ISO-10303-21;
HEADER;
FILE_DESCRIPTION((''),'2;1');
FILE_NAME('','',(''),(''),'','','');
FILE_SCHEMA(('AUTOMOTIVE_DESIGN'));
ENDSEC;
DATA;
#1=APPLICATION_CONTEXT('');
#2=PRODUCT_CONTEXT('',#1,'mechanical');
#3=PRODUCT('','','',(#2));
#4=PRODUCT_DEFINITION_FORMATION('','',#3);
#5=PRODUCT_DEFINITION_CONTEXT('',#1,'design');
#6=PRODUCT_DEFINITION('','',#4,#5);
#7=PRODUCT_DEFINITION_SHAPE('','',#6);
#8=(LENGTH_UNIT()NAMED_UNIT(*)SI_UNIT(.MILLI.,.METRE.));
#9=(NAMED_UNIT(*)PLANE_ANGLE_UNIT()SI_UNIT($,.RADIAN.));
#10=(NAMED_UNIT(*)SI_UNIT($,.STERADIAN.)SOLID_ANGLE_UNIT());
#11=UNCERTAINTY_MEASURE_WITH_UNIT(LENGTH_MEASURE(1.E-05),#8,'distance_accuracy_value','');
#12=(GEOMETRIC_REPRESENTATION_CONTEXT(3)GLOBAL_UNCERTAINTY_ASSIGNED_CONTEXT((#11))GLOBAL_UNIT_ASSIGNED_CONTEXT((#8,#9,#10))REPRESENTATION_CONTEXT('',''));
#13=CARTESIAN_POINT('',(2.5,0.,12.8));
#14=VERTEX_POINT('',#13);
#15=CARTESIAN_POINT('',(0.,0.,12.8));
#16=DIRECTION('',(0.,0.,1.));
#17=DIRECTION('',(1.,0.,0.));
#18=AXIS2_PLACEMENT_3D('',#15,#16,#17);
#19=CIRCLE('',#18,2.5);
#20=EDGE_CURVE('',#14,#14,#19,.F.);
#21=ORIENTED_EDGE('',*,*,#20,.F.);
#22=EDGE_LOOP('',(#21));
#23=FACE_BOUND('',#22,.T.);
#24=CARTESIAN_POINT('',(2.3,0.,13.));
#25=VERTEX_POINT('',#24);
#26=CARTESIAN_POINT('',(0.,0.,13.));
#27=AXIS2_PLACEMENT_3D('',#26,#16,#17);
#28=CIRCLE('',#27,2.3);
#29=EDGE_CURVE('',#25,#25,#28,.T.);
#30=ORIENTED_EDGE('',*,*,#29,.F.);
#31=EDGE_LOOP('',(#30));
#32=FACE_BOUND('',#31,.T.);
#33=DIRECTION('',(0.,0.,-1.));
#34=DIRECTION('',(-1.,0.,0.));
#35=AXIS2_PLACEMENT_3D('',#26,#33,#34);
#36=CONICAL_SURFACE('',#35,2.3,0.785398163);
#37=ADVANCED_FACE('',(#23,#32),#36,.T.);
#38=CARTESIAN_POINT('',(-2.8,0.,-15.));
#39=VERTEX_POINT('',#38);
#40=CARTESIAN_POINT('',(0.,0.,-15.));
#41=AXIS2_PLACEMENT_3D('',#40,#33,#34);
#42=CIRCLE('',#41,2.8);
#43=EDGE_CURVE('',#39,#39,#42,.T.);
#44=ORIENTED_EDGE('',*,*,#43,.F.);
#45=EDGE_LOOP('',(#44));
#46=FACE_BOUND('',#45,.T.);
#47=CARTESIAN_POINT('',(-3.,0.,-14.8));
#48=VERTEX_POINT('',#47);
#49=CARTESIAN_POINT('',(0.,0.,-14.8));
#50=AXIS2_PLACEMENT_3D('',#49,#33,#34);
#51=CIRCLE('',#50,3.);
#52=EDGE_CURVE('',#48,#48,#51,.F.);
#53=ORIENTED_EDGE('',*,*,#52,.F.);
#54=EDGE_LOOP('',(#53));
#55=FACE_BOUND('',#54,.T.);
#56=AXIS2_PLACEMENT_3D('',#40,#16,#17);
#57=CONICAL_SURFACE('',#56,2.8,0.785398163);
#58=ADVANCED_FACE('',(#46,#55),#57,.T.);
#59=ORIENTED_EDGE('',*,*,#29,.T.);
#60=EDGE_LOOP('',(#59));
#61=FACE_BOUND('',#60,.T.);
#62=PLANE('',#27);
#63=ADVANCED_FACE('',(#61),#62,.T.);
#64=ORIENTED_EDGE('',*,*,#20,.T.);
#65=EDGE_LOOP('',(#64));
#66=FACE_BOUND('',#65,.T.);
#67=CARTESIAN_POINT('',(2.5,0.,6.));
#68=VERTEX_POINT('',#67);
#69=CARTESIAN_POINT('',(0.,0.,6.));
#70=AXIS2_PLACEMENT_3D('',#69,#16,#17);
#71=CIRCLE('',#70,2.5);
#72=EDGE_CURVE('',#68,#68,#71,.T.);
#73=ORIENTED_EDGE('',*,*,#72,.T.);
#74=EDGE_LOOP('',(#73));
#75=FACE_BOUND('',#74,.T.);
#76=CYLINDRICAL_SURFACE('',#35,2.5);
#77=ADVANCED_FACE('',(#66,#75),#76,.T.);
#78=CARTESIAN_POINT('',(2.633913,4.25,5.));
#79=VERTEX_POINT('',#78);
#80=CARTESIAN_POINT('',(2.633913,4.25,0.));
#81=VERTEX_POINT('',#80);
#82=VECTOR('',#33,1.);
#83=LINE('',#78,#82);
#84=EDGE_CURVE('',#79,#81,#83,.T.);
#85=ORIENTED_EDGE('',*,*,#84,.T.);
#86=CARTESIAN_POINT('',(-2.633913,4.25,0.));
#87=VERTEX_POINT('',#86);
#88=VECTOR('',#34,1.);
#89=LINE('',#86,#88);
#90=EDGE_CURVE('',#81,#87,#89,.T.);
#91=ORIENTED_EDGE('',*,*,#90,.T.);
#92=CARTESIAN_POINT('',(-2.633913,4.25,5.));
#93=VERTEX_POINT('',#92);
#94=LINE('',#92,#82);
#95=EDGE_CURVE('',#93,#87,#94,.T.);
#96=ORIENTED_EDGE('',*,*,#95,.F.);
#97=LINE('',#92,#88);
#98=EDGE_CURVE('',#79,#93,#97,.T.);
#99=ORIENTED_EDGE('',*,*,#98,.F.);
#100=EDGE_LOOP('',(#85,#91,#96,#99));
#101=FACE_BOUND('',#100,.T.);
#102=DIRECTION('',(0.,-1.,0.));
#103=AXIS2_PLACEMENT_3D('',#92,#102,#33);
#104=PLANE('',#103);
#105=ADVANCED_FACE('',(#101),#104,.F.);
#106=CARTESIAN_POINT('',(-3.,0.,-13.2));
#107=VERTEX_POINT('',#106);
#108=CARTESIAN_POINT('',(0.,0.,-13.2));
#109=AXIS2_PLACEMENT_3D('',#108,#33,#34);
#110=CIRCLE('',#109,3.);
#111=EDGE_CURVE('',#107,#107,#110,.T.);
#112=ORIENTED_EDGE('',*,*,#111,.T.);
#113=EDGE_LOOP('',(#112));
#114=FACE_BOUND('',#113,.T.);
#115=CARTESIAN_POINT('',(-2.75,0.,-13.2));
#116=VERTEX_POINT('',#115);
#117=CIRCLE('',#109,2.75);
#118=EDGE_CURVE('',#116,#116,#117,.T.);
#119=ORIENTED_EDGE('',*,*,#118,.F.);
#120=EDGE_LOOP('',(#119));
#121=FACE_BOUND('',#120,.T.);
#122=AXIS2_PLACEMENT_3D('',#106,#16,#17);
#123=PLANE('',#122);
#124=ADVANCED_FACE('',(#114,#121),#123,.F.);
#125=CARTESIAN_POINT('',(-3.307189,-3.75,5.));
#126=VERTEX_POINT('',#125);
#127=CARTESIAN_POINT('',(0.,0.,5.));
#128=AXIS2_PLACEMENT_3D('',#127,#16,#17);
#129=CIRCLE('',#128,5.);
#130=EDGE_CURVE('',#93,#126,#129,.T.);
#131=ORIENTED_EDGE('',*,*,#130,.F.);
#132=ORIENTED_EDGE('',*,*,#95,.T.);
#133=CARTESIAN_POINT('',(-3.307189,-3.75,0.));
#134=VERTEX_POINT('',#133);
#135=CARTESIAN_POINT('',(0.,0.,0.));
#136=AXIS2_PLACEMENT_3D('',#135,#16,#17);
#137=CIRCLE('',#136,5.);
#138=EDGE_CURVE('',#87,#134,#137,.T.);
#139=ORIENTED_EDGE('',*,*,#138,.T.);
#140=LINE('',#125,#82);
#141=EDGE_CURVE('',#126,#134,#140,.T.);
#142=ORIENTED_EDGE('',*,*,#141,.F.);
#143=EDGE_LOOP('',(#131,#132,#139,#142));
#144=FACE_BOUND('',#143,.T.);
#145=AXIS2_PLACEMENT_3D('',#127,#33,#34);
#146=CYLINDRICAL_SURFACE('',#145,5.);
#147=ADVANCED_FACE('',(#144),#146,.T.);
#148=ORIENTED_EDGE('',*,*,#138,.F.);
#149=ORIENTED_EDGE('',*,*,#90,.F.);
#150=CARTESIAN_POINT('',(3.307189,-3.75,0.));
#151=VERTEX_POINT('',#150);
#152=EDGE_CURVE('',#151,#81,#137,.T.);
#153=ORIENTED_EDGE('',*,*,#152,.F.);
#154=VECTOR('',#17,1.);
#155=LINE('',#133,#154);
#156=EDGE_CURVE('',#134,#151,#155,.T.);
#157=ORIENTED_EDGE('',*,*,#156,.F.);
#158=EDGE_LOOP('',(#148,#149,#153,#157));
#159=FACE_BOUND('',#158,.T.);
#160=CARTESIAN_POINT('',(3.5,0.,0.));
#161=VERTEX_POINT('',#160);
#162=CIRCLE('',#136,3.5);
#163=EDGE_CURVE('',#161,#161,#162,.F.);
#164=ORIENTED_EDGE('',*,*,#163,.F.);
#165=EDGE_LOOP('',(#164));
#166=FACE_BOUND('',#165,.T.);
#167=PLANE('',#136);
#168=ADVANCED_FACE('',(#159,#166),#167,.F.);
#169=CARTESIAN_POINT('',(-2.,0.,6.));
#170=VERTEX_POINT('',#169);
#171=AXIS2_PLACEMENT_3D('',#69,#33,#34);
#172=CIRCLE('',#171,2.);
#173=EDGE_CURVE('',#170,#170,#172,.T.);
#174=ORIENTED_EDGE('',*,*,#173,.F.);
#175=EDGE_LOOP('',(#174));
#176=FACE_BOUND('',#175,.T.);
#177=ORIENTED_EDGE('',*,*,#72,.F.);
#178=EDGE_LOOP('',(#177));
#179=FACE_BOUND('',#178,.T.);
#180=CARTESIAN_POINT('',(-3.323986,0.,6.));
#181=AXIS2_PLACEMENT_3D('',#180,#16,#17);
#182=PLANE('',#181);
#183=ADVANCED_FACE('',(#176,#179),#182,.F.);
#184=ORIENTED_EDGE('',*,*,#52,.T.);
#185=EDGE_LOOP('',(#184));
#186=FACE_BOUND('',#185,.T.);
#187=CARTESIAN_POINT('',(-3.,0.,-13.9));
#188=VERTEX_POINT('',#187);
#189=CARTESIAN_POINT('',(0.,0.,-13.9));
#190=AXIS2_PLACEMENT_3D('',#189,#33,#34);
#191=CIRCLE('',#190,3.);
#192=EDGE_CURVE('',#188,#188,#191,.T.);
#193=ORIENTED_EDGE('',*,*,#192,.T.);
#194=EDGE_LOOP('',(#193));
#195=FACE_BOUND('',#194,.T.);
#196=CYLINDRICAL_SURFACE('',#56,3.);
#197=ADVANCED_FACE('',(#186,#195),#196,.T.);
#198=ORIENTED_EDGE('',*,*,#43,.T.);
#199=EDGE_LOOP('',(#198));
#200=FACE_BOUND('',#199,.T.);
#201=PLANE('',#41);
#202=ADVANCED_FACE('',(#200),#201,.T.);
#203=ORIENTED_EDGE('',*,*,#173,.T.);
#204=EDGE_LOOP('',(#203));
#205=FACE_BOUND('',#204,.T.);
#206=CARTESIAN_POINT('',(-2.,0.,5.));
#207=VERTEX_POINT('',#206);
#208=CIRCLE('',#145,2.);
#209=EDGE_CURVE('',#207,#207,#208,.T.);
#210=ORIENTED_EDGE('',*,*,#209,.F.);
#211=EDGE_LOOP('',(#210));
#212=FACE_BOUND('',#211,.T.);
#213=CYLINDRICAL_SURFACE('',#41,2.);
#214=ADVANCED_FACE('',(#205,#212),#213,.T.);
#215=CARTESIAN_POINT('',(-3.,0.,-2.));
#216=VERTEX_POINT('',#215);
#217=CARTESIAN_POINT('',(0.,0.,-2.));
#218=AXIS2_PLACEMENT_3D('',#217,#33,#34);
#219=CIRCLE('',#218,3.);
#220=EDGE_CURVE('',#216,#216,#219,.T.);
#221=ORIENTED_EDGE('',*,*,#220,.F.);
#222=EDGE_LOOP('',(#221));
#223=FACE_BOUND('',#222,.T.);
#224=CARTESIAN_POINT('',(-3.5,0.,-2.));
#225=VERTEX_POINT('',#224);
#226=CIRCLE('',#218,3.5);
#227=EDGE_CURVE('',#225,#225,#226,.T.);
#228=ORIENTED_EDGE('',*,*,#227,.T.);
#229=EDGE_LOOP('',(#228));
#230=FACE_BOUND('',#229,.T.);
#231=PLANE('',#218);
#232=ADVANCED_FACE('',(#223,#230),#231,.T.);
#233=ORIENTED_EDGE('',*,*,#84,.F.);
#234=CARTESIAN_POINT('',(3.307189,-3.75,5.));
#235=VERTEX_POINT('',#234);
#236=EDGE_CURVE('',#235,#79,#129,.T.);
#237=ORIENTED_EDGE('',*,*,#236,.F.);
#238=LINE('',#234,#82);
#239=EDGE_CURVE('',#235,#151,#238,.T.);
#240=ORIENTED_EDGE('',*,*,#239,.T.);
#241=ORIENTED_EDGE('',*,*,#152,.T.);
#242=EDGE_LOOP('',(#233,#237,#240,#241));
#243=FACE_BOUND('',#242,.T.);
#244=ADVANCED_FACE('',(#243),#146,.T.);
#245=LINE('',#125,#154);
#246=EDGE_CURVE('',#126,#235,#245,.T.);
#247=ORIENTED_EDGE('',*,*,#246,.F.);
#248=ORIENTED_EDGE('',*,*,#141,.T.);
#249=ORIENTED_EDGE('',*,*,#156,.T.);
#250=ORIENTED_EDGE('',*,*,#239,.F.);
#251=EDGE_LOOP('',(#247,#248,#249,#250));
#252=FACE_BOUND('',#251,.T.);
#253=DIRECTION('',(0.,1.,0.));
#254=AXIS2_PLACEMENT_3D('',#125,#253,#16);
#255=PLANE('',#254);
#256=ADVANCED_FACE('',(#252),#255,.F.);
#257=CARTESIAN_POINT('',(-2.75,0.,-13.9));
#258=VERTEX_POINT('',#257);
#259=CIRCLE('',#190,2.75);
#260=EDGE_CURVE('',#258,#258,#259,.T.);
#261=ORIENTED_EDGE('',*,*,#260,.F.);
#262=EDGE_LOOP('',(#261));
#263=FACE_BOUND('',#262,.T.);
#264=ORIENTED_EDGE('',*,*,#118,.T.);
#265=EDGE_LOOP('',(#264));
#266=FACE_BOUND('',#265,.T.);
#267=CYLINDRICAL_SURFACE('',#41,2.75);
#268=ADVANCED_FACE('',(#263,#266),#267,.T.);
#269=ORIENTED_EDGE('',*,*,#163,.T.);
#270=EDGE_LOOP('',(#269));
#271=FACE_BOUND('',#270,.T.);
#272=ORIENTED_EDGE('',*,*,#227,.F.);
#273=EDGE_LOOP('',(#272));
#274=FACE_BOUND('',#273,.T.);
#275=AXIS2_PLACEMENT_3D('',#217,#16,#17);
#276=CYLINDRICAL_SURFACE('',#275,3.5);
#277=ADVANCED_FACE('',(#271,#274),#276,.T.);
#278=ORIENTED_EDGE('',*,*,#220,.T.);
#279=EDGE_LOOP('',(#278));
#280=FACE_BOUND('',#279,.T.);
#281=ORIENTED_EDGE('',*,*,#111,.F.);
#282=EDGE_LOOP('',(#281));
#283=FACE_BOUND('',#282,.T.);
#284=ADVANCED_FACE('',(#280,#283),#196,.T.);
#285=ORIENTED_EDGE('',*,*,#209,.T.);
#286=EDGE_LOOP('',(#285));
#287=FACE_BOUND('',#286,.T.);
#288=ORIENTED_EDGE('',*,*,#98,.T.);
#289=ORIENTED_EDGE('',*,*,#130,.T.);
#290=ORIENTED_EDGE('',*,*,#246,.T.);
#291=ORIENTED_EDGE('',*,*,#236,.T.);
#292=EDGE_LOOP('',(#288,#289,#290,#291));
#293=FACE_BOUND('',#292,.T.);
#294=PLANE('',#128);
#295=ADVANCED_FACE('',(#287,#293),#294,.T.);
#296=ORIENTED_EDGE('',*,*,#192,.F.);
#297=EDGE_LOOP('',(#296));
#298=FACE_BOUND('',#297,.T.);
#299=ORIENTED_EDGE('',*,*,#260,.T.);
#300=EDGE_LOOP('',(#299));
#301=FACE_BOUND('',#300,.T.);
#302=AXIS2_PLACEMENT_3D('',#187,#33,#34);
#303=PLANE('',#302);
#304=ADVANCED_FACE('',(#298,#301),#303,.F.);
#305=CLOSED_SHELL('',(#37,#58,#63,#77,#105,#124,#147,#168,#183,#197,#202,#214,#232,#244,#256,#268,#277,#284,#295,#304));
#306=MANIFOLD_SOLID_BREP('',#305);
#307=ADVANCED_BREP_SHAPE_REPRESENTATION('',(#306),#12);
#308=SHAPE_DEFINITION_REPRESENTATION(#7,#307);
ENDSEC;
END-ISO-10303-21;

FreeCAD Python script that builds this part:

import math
import FreeCAD as App
import Part
import Sketcher

V = App.Vector


def edges_at(feature, points):
    """Names of the edges that pass closest to the given points."""
    edges = feature.Shape.Edges
    near = lambda p: min(range(len(edges)), key=lambda i: edges[i].distToShape(Part.Vertex(*p))[0])
    return sorted({f"Edge{near(p) + 1}" for p in points})

doc = App.newDocument("Part")
body = doc.addObject("PartDesign::Body", "Body")

# Sketch on XY plane
sketch1 = doc.addObject("Sketcher::SketchObject", "Sketch")
body.addObject(sketch1)
sketch1.AttachmentSupport = (doc.XY_Plane, [""])
sketch1.MapMode = "FlatFace"
sketch1.addGeometry([
    Part.LineSegment(V(3, 4, 0), V(-3, 4, 0)),
    Part.ArcOfCircle(Part.Circle(V(0, 0, 0), V(0, 0, 1), 5), math.radians(122), math.radians(229)),
    Part.LineSegment(V(-3, -4, 0), V(3, -4, 0)),
    Part.ArcOfCircle(Part.Circle(V(0, 0, 0), V(0, 0, 1), 5), math.radians(-49), math.radians(58)),
], False)
sketch1.addConstraint([
    Sketcher.Constraint("Coincident", 0, 2, 1, 1),
    Sketcher.Constraint("Coincident", 1, 2, 2, 1),
    Sketcher.Constraint("Coincident", 2, 2, 3, 1),
    Sketcher.Constraint("Coincident", 3, 2, 0, 1),
    Sketcher.Constraint("Horizontal", 0),
    Sketcher.Constraint("Horizontal", 2),
    Sketcher.Constraint("Coincident", 1, 3, -1, 1),
    Sketcher.Constraint("Coincident", 3, 3, -1, 1),
    Sketcher.Constraint("Equal", 1, 3),
    Sketcher.Constraint("Radius", 1, 5.0),
    Sketcher.Constraint("DistanceY", 1, 2, 0, 2, 8.0),
    Sketcher.Constraint("DistanceY", -1, 1, 0, 2, 4.25),
])
pad1 = doc.addObject("PartDesign::Pad", "Pad")
body.addObject(pad1)
pad1.Profile = sketch1
pad1.Length = 5

# Sketch on XY plane
sketch2 = doc.addObject("Sketcher::SketchObject", "Sketch001")
body.addObject(sketch2)
sketch2.AttachmentSupport = (doc.XY_Plane, [""])
sketch2.MapMode = "FlatFace"
sketch2.AttachmentOffset = App.Placement(V(0, 0, 5), App.Rotation())
sketch2.addGeometry(Part.Circle(V(0, 0, 0), V(0, 0, 1), 2.5), False)
sketch2.addConstraint([
    Sketcher.Constraint("Coincident", 0, 3, -1, 1),
    Sketcher.Constraint("Diameter", 0, 5.0),
])
pad2 = doc.addObject("PartDesign::Pad", "Pad001")
body.addObject(pad2)
pad2.Profile = sketch2
pad2.Length = 8

# Sketch on XY plane
sketch3 = doc.addObject("Sketcher::SketchObject", "Sketch002")
body.addObject(sketch3)
sketch3.AttachmentSupport = (doc.XY_Plane, [""])
sketch3.MapMode = "FlatFace"
sketch3.addGeometry(Part.Circle(V(0, 0, 0), V(0, 0, 1), 3), False)
sketch3.addConstraint([
    Sketcher.Constraint("Coincident", 0, 3, -1, 1),
    Sketcher.Constraint("Diameter", 0, 6.0),
])
pad3 = doc.addObject("PartDesign::Pad", "Pad002")
body.addObject(pad3)
pad3.Profile = sketch3
pad3.Length = 15
pad3.Reversed = True

# Sketch on XY plane
sketch4 = doc.addObject("Sketcher::SketchObject", "Sketch003")
body.addObject(sketch4)
sketch4.AttachmentSupport = (doc.XY_Plane, [""])
sketch4.MapMode = "FlatFace"
sketch4.addGeometry(Part.Circle(V(0, 0, 0), V(0, 0, 1), 3.5), False)
sketch4.addConstraint([
    Sketcher.Constraint("Coincident", 0, 3, -1, 1),
    Sketcher.Constraint("Diameter", 0, 7.0),
])
pad4 = doc.addObject("PartDesign::Pad", "Pad003")
body.addObject(pad4)
pad4.Profile = sketch4
pad4.Length = 2
pad4.Reversed = True

# Sketch on XZ plane
sketch5 = doc.addObject("Sketcher::SketchObject", "Sketch004")
body.addObject(sketch5)
sketch5.AttachmentSupport = (doc.XZ_Plane, [""])
sketch5.MapMode = "FlatFace"
sketch5.addGeometry([
    Part.LineSegment(V(-3, -13.9, 0), V(-3, -13.2, 0)),  # 0
    Part.LineSegment(V(-3, -13.2, 0), V(-2.75, -13.2, 0)),  # 1
    Part.LineSegment(V(-2.75, -13.2, 0), V(-2.75, -13.9, 0)),  # 2
    Part.LineSegment(V(-2.75, -13.9, 0), V(-3, -13.9, 0)),  # 3
    Part.LineSegment(V(-3.32, 5, 0), V(-3.32, 6, 0)),  # 4
    Part.LineSegment(V(-3.32, 6, 0), V(-2, 6, 0)),  # 5
    Part.LineSegment(V(-2, 6, 0), V(-2, 5, 0)),  # 6
    Part.LineSegment(V(-2, 5, 0), V(-3.32, 5, 0)),  # 7
], False)
sketch5.addConstraint([
    Sketcher.Constraint("Coincident", 0, 2, 1, 1),
    Sketcher.Constraint("Coincident", 1, 2, 2, 1),
    Sketcher.Constraint("Coincident", 2, 2, 3, 1),
    Sketcher.Constraint("Coincident", 3, 2, 0, 1),
    Sketcher.Constraint("Coincident", 4, 2, 5, 1),
    Sketcher.Constraint("Coincident", 5, 2, 6, 1),
    Sketcher.Constraint("Coincident", 6, 2, 7, 1),
    Sketcher.Constraint("Coincident", 7, 2, 4, 1),
    Sketcher.Constraint("Vertical", 0),
    Sketcher.Constraint("Horizontal", 1),
    Sketcher.Constraint("Vertical", 2),
    Sketcher.Constraint("Horizontal", 3),
    Sketcher.Constraint("Vertical", 4),
    Sketcher.Constraint("Horizontal", 5),
    Sketcher.Constraint("Vertical", 6),
    Sketcher.Constraint("Horizontal", 7),
    Sketcher.Constraint("DistanceY", 4, 1, 4, 2, 1.0),
    Sketcher.Constraint("DistanceY", 0, 1, 0, 2, 0.7),
    Sketcher.Constraint("DistanceX", 0, 2, -1, 1, 3.0),
    Sketcher.Constraint("DistanceY", -1, 1, 4, 2, 6.0),
    Sketcher.Constraint("DistanceX", 5, 2, -1, 1, 2.0),
    Sketcher.Constraint("DistanceX", 1, 1, 1, 2, 0.25),
    Sketcher.Constraint("DistanceY", 0, 2, -1, 1, 13.2),
    Sketcher.Constraint("DistanceX", 5, 1, 5, 2, 1.323986),
])
groove = doc.addObject("PartDesign::Groove", "Groove")
body.addObject(groove)
groove.Profile = sketch5
groove.ReferenceAxis = (sketch5, ["V_Axis"])
groove.Angle = 360
doc.recompute()

chamfer = doc.addObject("PartDesign::Chamfer", "Chamfer")
body.addObject(chamfer)
chamfer.Base = (groove, edges_at(groove, [(-2.5, 0, 13), (-3, 0, -15)]))
chamfer.Size = 0.2

doc.recompute()
